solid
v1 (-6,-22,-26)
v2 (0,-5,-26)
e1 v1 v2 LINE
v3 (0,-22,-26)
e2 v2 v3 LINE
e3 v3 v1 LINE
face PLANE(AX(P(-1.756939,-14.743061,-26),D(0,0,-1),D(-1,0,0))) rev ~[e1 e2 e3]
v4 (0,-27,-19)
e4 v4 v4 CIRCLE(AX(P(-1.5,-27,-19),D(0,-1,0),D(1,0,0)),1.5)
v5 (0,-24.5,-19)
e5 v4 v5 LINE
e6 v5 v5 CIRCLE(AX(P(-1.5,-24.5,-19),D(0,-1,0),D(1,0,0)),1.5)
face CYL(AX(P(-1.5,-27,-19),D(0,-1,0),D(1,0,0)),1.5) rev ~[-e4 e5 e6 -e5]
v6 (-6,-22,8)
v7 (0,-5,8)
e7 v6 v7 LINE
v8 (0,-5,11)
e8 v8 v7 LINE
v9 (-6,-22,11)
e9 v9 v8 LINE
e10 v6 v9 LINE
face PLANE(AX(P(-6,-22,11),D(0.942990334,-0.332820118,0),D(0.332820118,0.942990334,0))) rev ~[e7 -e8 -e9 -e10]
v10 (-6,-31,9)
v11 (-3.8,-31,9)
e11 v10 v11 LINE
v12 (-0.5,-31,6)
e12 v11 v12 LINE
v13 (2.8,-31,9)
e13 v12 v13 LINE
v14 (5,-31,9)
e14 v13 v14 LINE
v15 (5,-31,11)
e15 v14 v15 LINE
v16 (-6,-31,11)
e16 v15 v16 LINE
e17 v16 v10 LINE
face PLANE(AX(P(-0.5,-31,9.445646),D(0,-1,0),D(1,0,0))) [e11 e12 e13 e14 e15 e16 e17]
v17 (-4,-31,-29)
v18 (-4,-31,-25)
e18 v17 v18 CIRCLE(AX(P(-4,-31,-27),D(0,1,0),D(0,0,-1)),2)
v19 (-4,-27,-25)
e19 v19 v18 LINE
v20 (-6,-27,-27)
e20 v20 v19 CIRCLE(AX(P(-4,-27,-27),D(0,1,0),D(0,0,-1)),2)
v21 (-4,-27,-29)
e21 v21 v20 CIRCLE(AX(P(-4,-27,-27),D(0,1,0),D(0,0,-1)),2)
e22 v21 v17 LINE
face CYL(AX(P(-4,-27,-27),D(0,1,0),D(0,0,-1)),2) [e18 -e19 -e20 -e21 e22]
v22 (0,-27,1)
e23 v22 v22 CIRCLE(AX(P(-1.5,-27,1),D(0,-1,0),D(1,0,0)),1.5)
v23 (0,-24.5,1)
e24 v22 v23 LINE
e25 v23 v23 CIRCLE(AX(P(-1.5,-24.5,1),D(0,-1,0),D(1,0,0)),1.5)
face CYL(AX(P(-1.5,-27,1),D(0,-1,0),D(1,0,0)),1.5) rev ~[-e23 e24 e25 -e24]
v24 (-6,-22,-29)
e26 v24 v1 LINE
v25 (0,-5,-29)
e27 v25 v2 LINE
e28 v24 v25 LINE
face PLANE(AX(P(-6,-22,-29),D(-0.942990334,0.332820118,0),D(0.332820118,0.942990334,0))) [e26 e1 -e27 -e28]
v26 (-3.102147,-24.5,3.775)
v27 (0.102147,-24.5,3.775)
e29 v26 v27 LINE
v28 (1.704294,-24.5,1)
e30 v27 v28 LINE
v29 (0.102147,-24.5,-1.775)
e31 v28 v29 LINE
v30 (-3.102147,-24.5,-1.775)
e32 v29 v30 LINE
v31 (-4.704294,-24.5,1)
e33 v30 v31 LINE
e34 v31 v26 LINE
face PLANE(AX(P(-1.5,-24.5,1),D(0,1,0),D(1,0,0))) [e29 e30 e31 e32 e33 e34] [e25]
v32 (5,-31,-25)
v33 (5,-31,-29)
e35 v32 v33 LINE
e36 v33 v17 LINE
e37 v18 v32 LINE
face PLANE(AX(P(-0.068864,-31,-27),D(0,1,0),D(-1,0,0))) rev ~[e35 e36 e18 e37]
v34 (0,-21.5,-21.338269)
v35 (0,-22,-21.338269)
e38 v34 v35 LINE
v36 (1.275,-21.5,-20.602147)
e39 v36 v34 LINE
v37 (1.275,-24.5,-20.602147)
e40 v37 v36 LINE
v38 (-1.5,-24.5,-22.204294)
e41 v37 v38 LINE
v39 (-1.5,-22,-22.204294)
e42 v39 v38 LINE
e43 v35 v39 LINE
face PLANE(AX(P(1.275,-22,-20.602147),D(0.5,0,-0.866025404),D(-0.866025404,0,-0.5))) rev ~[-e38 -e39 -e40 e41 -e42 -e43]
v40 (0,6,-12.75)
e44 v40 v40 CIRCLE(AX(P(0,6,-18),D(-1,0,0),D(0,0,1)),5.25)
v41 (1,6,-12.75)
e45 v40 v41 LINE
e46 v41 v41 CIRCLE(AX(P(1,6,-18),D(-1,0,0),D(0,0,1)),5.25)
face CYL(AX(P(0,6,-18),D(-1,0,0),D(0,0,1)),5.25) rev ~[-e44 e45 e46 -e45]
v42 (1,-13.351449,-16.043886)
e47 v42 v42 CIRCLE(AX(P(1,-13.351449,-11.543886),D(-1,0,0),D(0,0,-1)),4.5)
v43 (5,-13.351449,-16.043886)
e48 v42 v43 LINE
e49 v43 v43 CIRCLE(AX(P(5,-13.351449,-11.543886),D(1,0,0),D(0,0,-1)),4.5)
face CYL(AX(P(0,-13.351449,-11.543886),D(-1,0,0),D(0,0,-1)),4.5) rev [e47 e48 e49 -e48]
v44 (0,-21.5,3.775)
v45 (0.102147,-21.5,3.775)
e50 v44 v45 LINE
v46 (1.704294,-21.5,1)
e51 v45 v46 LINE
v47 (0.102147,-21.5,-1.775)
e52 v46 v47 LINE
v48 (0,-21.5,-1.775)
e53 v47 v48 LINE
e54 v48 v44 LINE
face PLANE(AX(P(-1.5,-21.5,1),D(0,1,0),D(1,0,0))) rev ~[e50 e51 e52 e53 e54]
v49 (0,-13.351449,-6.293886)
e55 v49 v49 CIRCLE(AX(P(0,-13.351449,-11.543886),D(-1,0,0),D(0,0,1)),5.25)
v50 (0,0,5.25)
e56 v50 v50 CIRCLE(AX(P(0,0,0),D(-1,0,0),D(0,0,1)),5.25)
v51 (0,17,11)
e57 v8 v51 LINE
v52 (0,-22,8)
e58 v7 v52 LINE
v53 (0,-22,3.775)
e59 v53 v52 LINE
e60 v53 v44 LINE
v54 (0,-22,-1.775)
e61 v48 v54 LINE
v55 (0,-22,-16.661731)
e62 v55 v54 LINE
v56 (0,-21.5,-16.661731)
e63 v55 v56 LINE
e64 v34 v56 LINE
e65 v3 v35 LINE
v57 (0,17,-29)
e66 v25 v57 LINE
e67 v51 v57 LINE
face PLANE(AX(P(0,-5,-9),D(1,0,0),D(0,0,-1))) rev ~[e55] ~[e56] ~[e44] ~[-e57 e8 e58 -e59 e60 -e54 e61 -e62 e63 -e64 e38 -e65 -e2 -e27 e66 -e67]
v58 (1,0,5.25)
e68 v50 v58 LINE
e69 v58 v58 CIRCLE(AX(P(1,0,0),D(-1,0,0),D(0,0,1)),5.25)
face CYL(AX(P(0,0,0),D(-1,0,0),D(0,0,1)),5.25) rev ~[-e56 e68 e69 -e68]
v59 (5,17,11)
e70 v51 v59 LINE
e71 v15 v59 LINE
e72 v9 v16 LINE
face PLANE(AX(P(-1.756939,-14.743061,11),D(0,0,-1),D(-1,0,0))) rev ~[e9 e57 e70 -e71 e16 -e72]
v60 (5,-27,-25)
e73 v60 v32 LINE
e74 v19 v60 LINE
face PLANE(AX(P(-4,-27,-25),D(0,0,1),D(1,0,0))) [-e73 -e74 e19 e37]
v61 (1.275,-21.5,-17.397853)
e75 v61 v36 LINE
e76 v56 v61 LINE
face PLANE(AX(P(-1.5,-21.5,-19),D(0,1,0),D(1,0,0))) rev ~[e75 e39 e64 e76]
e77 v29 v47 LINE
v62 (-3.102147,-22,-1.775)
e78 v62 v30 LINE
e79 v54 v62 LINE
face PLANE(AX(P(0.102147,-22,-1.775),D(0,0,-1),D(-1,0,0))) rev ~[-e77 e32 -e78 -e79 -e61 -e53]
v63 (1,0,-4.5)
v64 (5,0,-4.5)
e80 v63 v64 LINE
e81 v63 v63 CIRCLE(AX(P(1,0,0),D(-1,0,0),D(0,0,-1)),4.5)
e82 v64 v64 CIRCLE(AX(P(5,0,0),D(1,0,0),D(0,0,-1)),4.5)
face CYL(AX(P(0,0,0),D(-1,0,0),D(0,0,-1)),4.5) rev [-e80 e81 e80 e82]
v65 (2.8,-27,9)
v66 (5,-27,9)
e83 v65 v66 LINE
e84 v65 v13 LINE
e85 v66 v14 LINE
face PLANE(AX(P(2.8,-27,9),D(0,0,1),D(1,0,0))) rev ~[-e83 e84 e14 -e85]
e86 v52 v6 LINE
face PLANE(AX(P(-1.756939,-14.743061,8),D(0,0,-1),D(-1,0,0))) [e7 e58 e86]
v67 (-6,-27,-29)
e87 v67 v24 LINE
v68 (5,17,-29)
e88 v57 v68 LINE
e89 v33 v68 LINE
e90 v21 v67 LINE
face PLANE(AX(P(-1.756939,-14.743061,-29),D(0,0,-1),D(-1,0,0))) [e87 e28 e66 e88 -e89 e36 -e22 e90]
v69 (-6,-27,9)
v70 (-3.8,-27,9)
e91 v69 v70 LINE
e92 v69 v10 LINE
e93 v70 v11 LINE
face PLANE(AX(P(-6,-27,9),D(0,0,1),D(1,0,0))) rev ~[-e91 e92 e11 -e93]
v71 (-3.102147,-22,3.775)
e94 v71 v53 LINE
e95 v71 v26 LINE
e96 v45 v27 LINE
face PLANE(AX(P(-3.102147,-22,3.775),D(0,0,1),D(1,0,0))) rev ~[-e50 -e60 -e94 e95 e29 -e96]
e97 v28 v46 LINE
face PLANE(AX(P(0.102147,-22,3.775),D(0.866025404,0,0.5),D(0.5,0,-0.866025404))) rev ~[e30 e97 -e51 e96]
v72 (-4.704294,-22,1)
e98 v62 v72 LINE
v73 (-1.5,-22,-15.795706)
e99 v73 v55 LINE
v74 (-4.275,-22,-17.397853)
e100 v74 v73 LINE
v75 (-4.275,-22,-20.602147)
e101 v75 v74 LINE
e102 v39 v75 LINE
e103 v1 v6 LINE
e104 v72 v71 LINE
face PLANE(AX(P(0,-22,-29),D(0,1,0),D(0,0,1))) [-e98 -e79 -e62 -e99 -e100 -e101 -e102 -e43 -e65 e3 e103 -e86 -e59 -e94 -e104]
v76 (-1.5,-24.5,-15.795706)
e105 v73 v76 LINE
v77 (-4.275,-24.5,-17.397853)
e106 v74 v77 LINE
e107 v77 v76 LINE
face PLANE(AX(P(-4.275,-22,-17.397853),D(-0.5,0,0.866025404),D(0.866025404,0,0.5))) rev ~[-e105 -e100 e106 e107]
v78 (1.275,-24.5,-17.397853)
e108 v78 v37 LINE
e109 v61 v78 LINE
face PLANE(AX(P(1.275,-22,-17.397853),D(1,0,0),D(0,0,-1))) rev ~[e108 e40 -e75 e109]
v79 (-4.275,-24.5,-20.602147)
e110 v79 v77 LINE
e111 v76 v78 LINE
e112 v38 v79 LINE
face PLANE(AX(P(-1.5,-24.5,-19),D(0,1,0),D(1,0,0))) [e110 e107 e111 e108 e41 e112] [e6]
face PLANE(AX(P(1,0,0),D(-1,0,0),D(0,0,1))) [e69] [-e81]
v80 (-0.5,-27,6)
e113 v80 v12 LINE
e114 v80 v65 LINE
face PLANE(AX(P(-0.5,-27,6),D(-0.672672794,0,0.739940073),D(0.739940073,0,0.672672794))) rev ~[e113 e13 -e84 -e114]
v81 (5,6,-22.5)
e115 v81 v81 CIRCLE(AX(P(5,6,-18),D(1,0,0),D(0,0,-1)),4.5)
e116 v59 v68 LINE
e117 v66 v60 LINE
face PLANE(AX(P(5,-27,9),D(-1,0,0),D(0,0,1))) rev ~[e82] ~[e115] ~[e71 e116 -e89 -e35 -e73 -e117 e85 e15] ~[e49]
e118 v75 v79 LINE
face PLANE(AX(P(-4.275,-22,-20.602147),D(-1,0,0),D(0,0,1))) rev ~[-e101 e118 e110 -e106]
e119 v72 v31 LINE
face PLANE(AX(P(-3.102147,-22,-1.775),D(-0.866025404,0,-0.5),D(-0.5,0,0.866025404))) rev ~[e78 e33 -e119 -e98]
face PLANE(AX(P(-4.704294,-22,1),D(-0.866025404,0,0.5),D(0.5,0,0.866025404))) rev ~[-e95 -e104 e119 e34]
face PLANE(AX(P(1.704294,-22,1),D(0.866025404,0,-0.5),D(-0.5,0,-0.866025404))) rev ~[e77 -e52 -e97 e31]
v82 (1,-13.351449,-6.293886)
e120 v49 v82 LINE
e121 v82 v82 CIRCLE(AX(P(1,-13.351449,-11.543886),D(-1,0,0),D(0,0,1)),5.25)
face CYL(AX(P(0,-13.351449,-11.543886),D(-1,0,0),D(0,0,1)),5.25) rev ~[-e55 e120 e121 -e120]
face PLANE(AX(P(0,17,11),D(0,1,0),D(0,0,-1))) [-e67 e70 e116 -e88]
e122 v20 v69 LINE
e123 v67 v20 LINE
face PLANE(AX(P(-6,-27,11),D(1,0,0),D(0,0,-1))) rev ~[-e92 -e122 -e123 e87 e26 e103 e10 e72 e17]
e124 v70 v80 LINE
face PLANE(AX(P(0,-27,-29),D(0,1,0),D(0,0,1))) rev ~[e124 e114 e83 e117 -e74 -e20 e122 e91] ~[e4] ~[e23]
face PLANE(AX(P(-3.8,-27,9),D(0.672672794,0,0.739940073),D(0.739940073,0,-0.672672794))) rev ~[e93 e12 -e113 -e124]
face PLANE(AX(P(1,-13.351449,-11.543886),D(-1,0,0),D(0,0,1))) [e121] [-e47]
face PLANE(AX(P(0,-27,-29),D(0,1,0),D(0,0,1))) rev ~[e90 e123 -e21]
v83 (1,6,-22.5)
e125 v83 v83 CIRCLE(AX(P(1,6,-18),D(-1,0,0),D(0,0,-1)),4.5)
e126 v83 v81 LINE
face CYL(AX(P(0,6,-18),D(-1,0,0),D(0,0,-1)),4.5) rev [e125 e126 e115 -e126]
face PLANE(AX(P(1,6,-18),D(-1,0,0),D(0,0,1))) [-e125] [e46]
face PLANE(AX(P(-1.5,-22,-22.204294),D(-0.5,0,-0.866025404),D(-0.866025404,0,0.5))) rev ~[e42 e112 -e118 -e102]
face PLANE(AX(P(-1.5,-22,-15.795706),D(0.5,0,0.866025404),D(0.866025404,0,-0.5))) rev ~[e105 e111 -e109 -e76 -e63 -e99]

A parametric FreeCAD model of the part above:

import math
import FreeCAD as App
import Part
import Sketcher

V = App.Vector
Q = App.Units.Quantity


def add_polygon(sketch, points):
    """Adds a closed chain of lines whose ends are joined by coincident constraints."""
    first, n = sketch.GeometryCount, len(points)
    for a, b in zip(points, points[1:] + points[:1]):
        sketch.addGeometry(Part.LineSegment(App.Vector(*a, 0), App.Vector(*b, 0)), False)
    for i in range(n):
        sketch.addConstraint(Sketcher.Constraint("Coincident", first + i, 2, first + (i + 1) % n, 1))

doc = App.newDocument("Part")
body = doc.addObject("PartDesign::Body", "Body")

# Sketch on YZ plane
sketch1 = doc.addObject("Sketcher::SketchObject", "Sketch")
body.addObject(sketch1)
sketch1.AttachmentSupport = (doc.YZ_Plane, [""])
sketch1.MapMode = "FlatFace"
add_polygon(sketch1, [(17, 11), (-27, 11), (-27, -29), (17, -29)])  # lines 0-3
sketch1.addGeometry(Part.Circle(V(-13.4, -11.5, 0), V(0, 0, 1), 4.5), False)  # 4
sketch1.addGeometry(Part.Circle(V(0, 0, 0), V(0, 0, 1), 4.5), False)  # 5
sketch1.addGeometry(Part.Circle(V(6, -18, 0), V(0, 0, 1), 4.5), False)  # 6
sketch1.addConstraint(Sketcher.Constraint("Horizontal", 0))
sketch1.addConstraint(Sketcher.Constraint("Vertical", 1))
sketch1.addConstraint(Sketcher.Constraint("Horizontal", 2))
sketch1.addConstraint(Sketcher.Constraint("Vertical", 3))
sketch1.addConstraint(Sketcher.Constraint("Coincident", 5, 3, -1, 1))
sketch1.addConstraint(Sketcher.Constraint("Equal", 4, 5))
sketch1.addConstraint(Sketcher.Constraint("Equal", 5, 6))
sketch1.addConstraint(Sketcher.Constraint("Diameter", 4, 9.0))
sketch1.addConstraint(Sketcher.Constraint("DistanceX", 0, 2, 0, 1, 44.0))
sketch1.addConstraint(Sketcher.Constraint("DistanceY", 1, 2, 1, 1, 40.0))
sketch1.addConstraint(Sketcher.Constraint("DistanceX", -1, 1, 6, 3, 6.0))
sketch1.addConstraint(Sketcher.Constraint("DistanceY", 6, 3, -1, 1, 18.0))
sketch1.addConstraint(Sketcher.Constraint("DistanceX", 0, 2, -1, 1, 27.0))
sketch1.addConstraint(Sketcher.Constraint("DistanceY", -1, 1, 0, 2, 11.0))
sketch1.addConstraint(Sketcher.Constraint("DistanceX", 4, 3, -1, 1, 13.351449))
sketch1.addConstraint(Sketcher.Constraint("DistanceY", 4, 3, -1, 1, 11.543886))
pad1 = doc.addObject("PartDesign::Pad", "Pad")
body.addObject(pad1)
pad1.Profile = sketch1
pad1.Length = 5

# Sketch on YZ plane
sketch2 = doc.addObject("Sketcher::SketchObject", "Sketch001")
body.addObject(sketch2)
sketch2.AttachmentSupport = (doc.YZ_Plane, [""])
sketch2.MapMode = "FlatFace"
sketch2.addGeometry(Part.Circle(V(6, -18, 0), V(0, 0, 1), 5), False)
sketch2.addGeometry(Part.Circle(V(0, 0, 0), V(0, 0, 1), 5), False)
sketch2.addGeometry(Part.Circle(V(-13, -12, 0), V(0, 0, 1), 5), False)
sketch2.addConstraint(Sketcher.Constraint("Coincident", 1, 3, -1, 1))
sketch2.addConstraint(Sketcher.Constraint("Equal", 0, 1))
sketch2.addConstraint(Sketcher.Constraint("Equal", 1, 2))
sketch2.addConstraint(Sketcher.Constraint("Diameter", 0, 10.5))
sketch2.addConstraint(Sketcher.Constraint("DistanceX", -1, 1, 0, 3, 6.0))
sketch2.addConstraint(Sketcher.Constraint("DistanceY", 0, 3, -1, 1, 18.0))
sketch2.addConstraint(Sketcher.Constraint("DistanceX", 2, 3, -1, 1, 13.351449))
sketch2.addConstraint(Sketcher.Constraint("DistanceY", 2, 3, -1, 1, 11.543886))
pocket1 = doc.addObject("PartDesign::Pocket", "Pocket")
body.addObject(pocket1)
pocket1.Profile = sketch2
pocket1.Length = 1
pocket1.Reversed = True

# Sketch on YZ plane
sketch3 = doc.addObject("Sketcher::SketchObject", "Sketch002")
body.addObject(sketch3)
sketch3.AttachmentSupport = (doc.YZ_Plane, [""])
sketch3.MapMode = "FlatFace"
add_polygon(sketch3, [(-22, -29), (-27, -29), (-27, 11), (-22, 11)])  # lines 0-3
sketch3.addConstraint(Sketcher.Constraint("Horizontal", 0))
sketch3.addConstraint(Sketcher.Constraint("Vertical", 1))
sketch3.addConstraint(Sketcher.Constraint("Horizontal", 2))
sketch3.addConstraint(Sketcher.Constraint("Vertical", 3))
sketch3.addConstraint(Sketcher.Constraint("DistanceX", 0, 2, 0, 1, 5.0))
sketch3.addConstraint(Sketcher.Constraint("DistanceY", 1, 1, 1, 2, 40.0))
sketch3.addConstraint(Sketcher.Constraint("DistanceX", 0, 2, -1, 1, 27.0))
sketch3.addConstraint(Sketcher.Constraint("DistanceY", 0, 2, -1, 1, 29.0))
pad2 = doc.addObject("PartDesign::Pad", "Pad001")
body.addObject(pad2)
pad2.Profile = sketch3
pad2.Length = 6
pad2.Reversed = True

# Sketch on XZ plane
sketch4 = doc.addObject("Sketcher::SketchObject", "Sketch003")
body.addObject(sketch4)
sketch4.AttachmentSupport = (doc.XZ_Plane, [""])
sketch4.MapMode = "FlatFace"
sketch4.AttachmentOffset = App.Placement(V(0, 0, 27), App.Rotation())
add_polygon(sketch4, [(5, 11), (-6, 11), (-6, 9), (-3.8, 9), (-0.5, 6), (2.8, 9), (5, 9)])  # lines 0-6
sketch4.addGeometry(Part.LineSegment(V(-4, -29, 0), V(5, -29, 0)), False)  # 7
sketch4.addGeometry(Part.LineSegment(V(5, -29, 0), V(5, -25, 0)), False)  # 8
sketch4.addGeometry(Part.LineSegment(V(5, -25, 0), V(-4, -25, 0)), False)  # 9
sketch4.addGeometry(Part.ArcOfCircle(Part.Circle(V(-4, -27, 0), V(0, 0, 1), 2), math.radians(90), math.radians(270)), False)  # 10
sketch4.addConstraint(Sketcher.Constraint("Coincident", 7, 2, 8, 1))
sketch4.addConstraint(Sketcher.Constraint("Coincident", 8, 2, 9, 1))
sketch4.addConstraint(Sketcher.Constraint("Tangent", 9, 2, 10, 1))
sketch4.addConstraint(Sketcher.Constraint("Tangent", 10, 2, 7, 1))
sketch4.addConstraint(Sketcher.Constraint("Horizontal", 0))
sketch4.addConstraint(Sketcher.Constraint("Vertical", 1))
sketch4.addConstraint(Sketcher.Constraint("Horizontal", 2))
sketch4.addConstraint(Sketcher.Constraint("Horizontal", 5))
sketch4.addConstraint(Sketcher.Constraint("Vertical", 6))
sketch4.addConstraint(Sketcher.Constraint("Horizontal", 7))
sketch4.addConstraint(Sketcher.Constraint("Vertical", 8))
sketch4.addConstraint(Sketcher.Constraint("Horizontal", 9))
sketch4.addConstraint(Sketcher.Constraint("Horizontal", 2, 2, 4, 2))
sketch4.addConstraint(Sketcher.Constraint("Vertical", 6, 2, 7, 2))
sketch4.addConstraint(Sketcher.Constraint("Equal", 2, 5))
sketch4.addConstraint(Sketcher.Constraint("Equal", 3, 4))
sketch4.addConstraint(Sketcher.Constraint("Radius", 10, 2.0))
sketch4.addConstraint(Sketcher.Constraint("DistanceX", 0, 2, 0, 1, 11.0))
sketch4.addConstraint(Sketcher.Constraint("DistanceX", 7, 1, 7, 2, 9.0))
sketch4.addConstraint(Sketcher.Constraint("DistanceY", 1, 2, 1, 1, 2.0))
sketch4.addConstraint(Sketcher.Constraint("DistanceX", 2, 1, 2, 2, 2.2))
sketch4.addConstraint(Sketcher.Constraint("DistanceX", 10, 3, -1, 1, 4.0))
sketch4.addConstraint(Sketcher.Constraint("DistanceY", 10, 3, -1, 1, 27.0))
sketch4.addConstraint(Sketcher.Constraint("DistanceY", -1, 1, 0, 2, 11.0))
sketch4.addConstraint(Sketcher.Constraint("DistanceY", -1, 1, 3, 2, 6.0))
pad3 = doc.addObject("PartDesign::Pad", "Pad002")
body.addObject(pad3)
pad3.Profile = sketch4
pad3.Length = 4

# Sketch on XZ plane
sketch5 = doc.addObject("Sketcher::SketchObject", "Sketch004")
body.addObject(sketch5)
sketch5.AttachmentSupport = (doc.XZ_Plane, [""])
sketch5.MapMode = "FlatFace"
sketch5.AttachmentOffset = App.Placement(V(0, 0, 27), App.Rotation())
sketch5.addGeometry(Part.Circle(V(-1.5, -19, 0), V(0, 0, 1), 1.5), False)
sketch5.addGeometry(Part.Circle(V(-1.5, 1, 0), V(0, 0, 1), 1.5), False)
sketch5.addConstraint(Sketcher.Constraint("Equal", 0, 1))
sketch5.addConstraint(Sketcher.Constraint("Vertical", 0, 3, 1, 3))
sketch5.addConstraint(Sketcher.Constraint("Diameter", 0, 3.0))
sketch5.addConstraint(Sketcher.Constraint("DistanceY", 0, 3, -1, 1, 19.0))
sketch5.addConstraint(Sketcher.Constraint("DistanceY", -1, 1, 1, 3, 1.0))
sketch5.addConstraint(Sketcher.Constraint("DistanceX", 0, 3, -1, 1, 1.5))
pocket2 = doc.addObject("PartDesign::Pocket", "Pocket001")
body.addObject(pocket2)
pocket2.Profile = sketch5
pocket2.Length = 5

# Sketch on XZ plane
sketch6 = doc.addObject("Sketcher::SketchObject", "Sketch005")
body.addObject(sketch6)
sketch6.AttachmentSupport = (doc.XZ_Plane, [""])
sketch6.MapMode = "FlatFace"
sketch6.AttachmentOffset = App.Placement(V(0, 0, 22), App.Rotation())
add_polygon(sketch6, [(-1.5, -15.8), (1.3, -17.4), (1.3, -20.6), (-1.5, -22.2), (-4.3, -20.6), (-4.3, -17.4)])  # lines 0-5
add_polygon(sketch6, [(-4.7, 1), (-3.1, 3.8), (0.1, 3.8), (1.7, 1), (0.1, -1.8), (-3.1, -1.8)])  # lines 6-11
sketch6.addConstraint(Sketcher.Constraint("Vertical", 1))
sketch6.addConstraint(Sketcher.Constraint("Vertical", 4))
sketch6.addConstraint(Sketcher.Constraint("Horizontal", 7))
sketch6.addConstraint(Sketcher.Constraint("Horizontal", 10))
sketch6.addConstraint(Sketcher.Constraint("Parallel", 0, 3))
sketch6.addConstraint(Sketcher.Constraint("Parallel", 2, 5))
sketch6.addConstraint(Sketcher.Constraint("Perpendicular", 3, 6))
sketch6.addConstraint(Sketcher.Constraint("Perpendicular", 5, 8))
sketch6.addConstraint(Sketcher.Constraint("Parallel", 6, 9))
sketch6.addConstraint(Sketcher.Constraint("Parallel", 8, 11))
sketch6.addConstraint(Sketcher.Constraint("Horizontal", 1, 2, 3, 2))
sketch6.addConstraint(Sketcher.Constraint("Horizontal", 0, 2, 4, 2))
sketch6.addConstraint(Sketcher.Constraint("Horizontal", 8, 2, 11, 2))
sketch6.addConstraint(Sketcher.Constraint("Vertical", 2, 2, 5, 2))
sketch6.addConstraint(Sketcher.Constraint("Vertical", 7, 2, 9, 2))
sketch6.addConstraint(Sketcher.Constraint("Equal", 10, 1))
sketch6.addConstraint(Sketcher.Constraint("Equal", 5, 6))
sketch6.addConstraint(Sketcher.Constraint("Angle", 0, Q("-30 deg")))
sketch6.addConstraint(Sketcher.Constraint("DistanceY", -1, 1, 8, 2, 1.0))
sketch6.addConstraint(Sketcher.Constraint("DistanceX", 2, 2, -1, 1, 1.5))
sketch6.addConstraint(Sketcher.Constraint("DistanceX", 3, 2, 1, 2, 5.55))
sketch6.addConstraint(Sketcher.Constraint("DistanceX", 7, 1, 7, 2, 3.204294))
sketch6.addConstraint(Sketcher.Constraint("DistanceY", 0, 2, -1, 1, 17.397853))
sketch6.addConstraint(Sketcher.Constraint("DistanceX", 6, 2, -1, 1, 3.102147))
pocket3 = doc.addObject("PartDesign::Pocket", "Pocket002")
body.addObject(pocket3)
pocket3.Profile = sketch6
pocket3.Type = "TwoLengths"
pocket3.Length = 0.5
pocket3.Length2 = 2.5

# Sketch on XY plane
sketch7 = doc.addObject("Sketcher::SketchObject", "Sketch006")
body.addObject(sketch7)
sketch7.AttachmentSupport = (doc.XY_Plane, [""])
sketch7.MapMode = "FlatFace"
sketch7.AttachmentOffset = App.Placement(V(0, 0, 11), App.Rotation())
add_polygon(sketch7, [(-6, -22), (0, -22), (0, -5)])  # lines 0-2
sketch7.addConstraint(Sketcher.Constraint("Horizontal", 0))
sketch7.addConstraint(Sketcher.Constraint("Vertical", 1))
sketch7.addConstraint(Sketcher.Constraint("PointOnObject", 0, 2, -2))
sketch7.addConstraint(Sketcher.Constraint("DistanceX", 0, 1, 0, 2, 6.0))
sketch7.addConstraint(Sketcher.Constraint("DistanceY", 1, 1, 1, 2, 17.0))
sketch7.addConstraint(Sketcher.Constraint("DistanceY", 0, 2, -1, 1, 22.0))
pad4 = doc.addObject("PartDesign::Pad", "Pad003")
body.addObject(pad4)
pad4.Profile = sketch7
pad4.Length = 3
pad4.Reversed = True

# Sketch on XY plane
sketch8 = doc.addObject("Sketcher::SketchObject", "Sketch007")
body.addObject(sketch8)
sketch8.AttachmentSupport = (doc.XY_Plane, [""])
sketch8.MapMode = "FlatFace"
sketch8.AttachmentOffset = App.Placement(V(0, 0, -29), App.Rotation())
add_polygon(sketch8, [(0, -22), (-6, -22), (0, -5)])  # lines 0-2
sketch8.addConstraint(Sketcher.Constraint("Horizontal", 0))
sketch8.addConstraint(Sketcher.Constraint("Vertical", 2))
sketch8.addConstraint(Sketcher.Constraint("PointOnObject", 1, 2, -2))
sketch8.addConstraint(Sketcher.Constraint("DistanceX", 0, 2, 0, 1, 6.0))
sketch8.addConstraint(Sketcher.Constraint("DistanceY", 2, 2, 2, 1, 17.0))
sketch8.addConstraint(Sketcher.Constraint("DistanceY", 0, 2, -1, 1, 22.0))
pad5 = doc.addObject("PartDesign::Pad", "Pad004")
body.addObject(pad5)
pad5.Profile = sketch8
pad5.Length = 3

doc.recompute()
